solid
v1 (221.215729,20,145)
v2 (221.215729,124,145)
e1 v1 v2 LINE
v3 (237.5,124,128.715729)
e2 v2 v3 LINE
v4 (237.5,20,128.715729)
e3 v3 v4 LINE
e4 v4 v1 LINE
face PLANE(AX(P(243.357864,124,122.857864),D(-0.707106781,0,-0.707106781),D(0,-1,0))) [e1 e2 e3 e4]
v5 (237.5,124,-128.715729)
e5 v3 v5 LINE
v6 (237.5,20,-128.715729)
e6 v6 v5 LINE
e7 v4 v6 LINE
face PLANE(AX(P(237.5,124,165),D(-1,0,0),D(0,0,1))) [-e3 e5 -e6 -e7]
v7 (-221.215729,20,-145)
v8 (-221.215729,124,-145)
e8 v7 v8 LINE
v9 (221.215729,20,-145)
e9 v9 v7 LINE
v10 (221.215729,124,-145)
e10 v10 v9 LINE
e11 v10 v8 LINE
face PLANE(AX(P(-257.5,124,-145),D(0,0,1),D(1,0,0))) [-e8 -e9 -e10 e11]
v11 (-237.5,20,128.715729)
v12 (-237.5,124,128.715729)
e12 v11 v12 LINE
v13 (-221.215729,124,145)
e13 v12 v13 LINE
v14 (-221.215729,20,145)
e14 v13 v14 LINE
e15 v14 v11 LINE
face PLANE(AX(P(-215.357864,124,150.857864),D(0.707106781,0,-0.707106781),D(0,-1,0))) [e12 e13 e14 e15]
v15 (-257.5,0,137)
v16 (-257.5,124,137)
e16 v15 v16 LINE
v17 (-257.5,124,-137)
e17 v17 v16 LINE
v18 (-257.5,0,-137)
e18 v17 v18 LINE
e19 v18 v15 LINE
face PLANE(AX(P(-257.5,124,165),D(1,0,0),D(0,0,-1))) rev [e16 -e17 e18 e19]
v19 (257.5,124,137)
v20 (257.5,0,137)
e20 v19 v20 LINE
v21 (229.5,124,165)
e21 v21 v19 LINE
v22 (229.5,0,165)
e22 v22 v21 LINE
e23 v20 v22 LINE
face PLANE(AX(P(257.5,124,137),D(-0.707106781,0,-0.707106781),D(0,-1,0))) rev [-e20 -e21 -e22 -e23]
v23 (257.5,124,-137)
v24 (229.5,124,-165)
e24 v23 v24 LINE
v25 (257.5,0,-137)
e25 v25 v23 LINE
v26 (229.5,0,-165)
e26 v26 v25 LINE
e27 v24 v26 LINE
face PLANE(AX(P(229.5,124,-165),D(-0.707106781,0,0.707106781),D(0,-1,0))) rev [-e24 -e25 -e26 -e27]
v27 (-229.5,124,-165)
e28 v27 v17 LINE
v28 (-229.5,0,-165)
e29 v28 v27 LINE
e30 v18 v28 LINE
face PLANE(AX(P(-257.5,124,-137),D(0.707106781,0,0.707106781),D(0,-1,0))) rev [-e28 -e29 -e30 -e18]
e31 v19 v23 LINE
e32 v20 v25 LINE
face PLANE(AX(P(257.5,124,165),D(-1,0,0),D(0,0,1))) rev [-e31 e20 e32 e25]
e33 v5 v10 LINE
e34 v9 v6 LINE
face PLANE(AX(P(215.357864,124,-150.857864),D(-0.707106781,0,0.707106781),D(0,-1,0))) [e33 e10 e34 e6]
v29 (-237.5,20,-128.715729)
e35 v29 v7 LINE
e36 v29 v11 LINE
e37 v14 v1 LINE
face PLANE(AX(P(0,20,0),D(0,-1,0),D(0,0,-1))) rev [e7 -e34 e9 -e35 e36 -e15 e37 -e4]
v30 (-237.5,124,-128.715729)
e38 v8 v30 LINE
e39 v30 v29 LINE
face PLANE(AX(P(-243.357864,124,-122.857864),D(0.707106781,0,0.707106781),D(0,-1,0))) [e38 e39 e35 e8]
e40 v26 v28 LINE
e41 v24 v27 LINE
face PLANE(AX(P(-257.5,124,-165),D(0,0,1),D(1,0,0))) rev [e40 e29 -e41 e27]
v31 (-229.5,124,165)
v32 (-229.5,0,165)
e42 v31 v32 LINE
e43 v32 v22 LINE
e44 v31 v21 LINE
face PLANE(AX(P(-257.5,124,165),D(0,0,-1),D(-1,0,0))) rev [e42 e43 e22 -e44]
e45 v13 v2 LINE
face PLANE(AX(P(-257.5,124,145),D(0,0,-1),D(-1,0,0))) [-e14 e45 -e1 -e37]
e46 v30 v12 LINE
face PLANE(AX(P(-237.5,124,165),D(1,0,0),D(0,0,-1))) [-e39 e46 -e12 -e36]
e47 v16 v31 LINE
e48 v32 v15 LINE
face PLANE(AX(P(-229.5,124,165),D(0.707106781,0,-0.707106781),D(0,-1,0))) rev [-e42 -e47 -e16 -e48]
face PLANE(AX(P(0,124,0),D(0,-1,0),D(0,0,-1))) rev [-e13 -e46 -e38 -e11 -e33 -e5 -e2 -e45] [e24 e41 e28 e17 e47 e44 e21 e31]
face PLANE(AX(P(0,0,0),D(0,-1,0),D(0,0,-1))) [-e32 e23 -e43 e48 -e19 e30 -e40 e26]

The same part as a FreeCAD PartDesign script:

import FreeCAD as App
import Part
import Sketcher

V = App.Vector


def edges_at(feature, points):
    """Names of the edges that pass closest to the given points."""
    edges = feature.Shape.Edges
    near = lambda p: min(range(len(edges)), key=lambda i: edges[i].distToShape(Part.Vertex(*p))[0])
    return sorted({f"Edge{near(p) + 1}" for p in points})


def faces_at(feature, points):
    """Names of the faces that lie closest to the given points."""
    faces = feature.Shape.Faces
    near = lambda p: min(range(len(faces)), key=lambda i: faces[i].distToShape(Part.Vertex(*p))[0])
    return sorted({f"Face{near(p) + 1}" for p in points})


def add_polygon(sketch, points):
    """Adds a closed chain of lines whose ends are joined by coincident constraints."""
    first, n = sketch.GeometryCount, len(points)
    for a, b in zip(points, points[1:] + points[:1]):
        sketch.addGeometry(Part.LineSegment(App.Vector(*a, 0), App.Vector(*b, 0)), False)
    for i in range(n):
        sketch.addConstraint(Sketcher.Constraint("Coincident", first + i, 2, first + (i + 1) % n, 1))

doc = App.newDocument("Part")
body = doc.addObject("PartDesign::Body", "Body")

# Sketch on XZ plane
sketch1 = body.newObject("Sketcher::SketchObject", "Sketch")
sketch1.AttachmentSupport = (doc.getObject("XZ_Plane"), [""])
sketch1.MapMode = "FlatFace"
add_polygon(sketch1, [(-258, -165), (-258, 165), (258, 165), (258, -165)])  # lines 0-3
sketch1.addConstraint(Sketcher.Constraint("Vertical", 0))
sketch1.addConstraint(Sketcher.Constraint("Horizontal", 1))
sketch1.addConstraint(Sketcher.Constraint("Vertical", 2))
sketch1.addConstraint(Sketcher.Constraint("Horizontal", 3))
sketch1.addConstraint(Sketcher.Constraint("Symmetric", 0, 2, 2, 2, -1, 1))
sketch1.addConstraint(Sketcher.Constraint("DistanceX", 1, 1, 1, 2, 515.0))
sketch1.addConstraint(Sketcher.Constraint("DistanceY", 0, 1, 0, 2, 330.0))
pad1 = body.newObject("PartDesign::Pad", "Pad")
pad1.Profile = sketch1
pad1.Length = 124
pad1.Reversed = True
doc.recompute()

chamfer = body.newObject("PartDesign::Chamfer", "Chamfer")
chamfer.Base = (pad1, edges_at(pad1, [
    (257.5, 62, 165),
    (-257.5, 62, 165),
    (-257.5, 62, -165),
    (257.5, 62, -165),
]))
chamfer.Size = 28
doc.recompute()

thickness = body.newObject("PartDesign::Thickness", "Thickness")
thickness.Base = (chamfer, faces_at(chamfer, [(0, 124, 0)]))
thickness.Value = 20
thickness.Reversed = True
thickness.Join = "Intersection"

doc.recompute()
